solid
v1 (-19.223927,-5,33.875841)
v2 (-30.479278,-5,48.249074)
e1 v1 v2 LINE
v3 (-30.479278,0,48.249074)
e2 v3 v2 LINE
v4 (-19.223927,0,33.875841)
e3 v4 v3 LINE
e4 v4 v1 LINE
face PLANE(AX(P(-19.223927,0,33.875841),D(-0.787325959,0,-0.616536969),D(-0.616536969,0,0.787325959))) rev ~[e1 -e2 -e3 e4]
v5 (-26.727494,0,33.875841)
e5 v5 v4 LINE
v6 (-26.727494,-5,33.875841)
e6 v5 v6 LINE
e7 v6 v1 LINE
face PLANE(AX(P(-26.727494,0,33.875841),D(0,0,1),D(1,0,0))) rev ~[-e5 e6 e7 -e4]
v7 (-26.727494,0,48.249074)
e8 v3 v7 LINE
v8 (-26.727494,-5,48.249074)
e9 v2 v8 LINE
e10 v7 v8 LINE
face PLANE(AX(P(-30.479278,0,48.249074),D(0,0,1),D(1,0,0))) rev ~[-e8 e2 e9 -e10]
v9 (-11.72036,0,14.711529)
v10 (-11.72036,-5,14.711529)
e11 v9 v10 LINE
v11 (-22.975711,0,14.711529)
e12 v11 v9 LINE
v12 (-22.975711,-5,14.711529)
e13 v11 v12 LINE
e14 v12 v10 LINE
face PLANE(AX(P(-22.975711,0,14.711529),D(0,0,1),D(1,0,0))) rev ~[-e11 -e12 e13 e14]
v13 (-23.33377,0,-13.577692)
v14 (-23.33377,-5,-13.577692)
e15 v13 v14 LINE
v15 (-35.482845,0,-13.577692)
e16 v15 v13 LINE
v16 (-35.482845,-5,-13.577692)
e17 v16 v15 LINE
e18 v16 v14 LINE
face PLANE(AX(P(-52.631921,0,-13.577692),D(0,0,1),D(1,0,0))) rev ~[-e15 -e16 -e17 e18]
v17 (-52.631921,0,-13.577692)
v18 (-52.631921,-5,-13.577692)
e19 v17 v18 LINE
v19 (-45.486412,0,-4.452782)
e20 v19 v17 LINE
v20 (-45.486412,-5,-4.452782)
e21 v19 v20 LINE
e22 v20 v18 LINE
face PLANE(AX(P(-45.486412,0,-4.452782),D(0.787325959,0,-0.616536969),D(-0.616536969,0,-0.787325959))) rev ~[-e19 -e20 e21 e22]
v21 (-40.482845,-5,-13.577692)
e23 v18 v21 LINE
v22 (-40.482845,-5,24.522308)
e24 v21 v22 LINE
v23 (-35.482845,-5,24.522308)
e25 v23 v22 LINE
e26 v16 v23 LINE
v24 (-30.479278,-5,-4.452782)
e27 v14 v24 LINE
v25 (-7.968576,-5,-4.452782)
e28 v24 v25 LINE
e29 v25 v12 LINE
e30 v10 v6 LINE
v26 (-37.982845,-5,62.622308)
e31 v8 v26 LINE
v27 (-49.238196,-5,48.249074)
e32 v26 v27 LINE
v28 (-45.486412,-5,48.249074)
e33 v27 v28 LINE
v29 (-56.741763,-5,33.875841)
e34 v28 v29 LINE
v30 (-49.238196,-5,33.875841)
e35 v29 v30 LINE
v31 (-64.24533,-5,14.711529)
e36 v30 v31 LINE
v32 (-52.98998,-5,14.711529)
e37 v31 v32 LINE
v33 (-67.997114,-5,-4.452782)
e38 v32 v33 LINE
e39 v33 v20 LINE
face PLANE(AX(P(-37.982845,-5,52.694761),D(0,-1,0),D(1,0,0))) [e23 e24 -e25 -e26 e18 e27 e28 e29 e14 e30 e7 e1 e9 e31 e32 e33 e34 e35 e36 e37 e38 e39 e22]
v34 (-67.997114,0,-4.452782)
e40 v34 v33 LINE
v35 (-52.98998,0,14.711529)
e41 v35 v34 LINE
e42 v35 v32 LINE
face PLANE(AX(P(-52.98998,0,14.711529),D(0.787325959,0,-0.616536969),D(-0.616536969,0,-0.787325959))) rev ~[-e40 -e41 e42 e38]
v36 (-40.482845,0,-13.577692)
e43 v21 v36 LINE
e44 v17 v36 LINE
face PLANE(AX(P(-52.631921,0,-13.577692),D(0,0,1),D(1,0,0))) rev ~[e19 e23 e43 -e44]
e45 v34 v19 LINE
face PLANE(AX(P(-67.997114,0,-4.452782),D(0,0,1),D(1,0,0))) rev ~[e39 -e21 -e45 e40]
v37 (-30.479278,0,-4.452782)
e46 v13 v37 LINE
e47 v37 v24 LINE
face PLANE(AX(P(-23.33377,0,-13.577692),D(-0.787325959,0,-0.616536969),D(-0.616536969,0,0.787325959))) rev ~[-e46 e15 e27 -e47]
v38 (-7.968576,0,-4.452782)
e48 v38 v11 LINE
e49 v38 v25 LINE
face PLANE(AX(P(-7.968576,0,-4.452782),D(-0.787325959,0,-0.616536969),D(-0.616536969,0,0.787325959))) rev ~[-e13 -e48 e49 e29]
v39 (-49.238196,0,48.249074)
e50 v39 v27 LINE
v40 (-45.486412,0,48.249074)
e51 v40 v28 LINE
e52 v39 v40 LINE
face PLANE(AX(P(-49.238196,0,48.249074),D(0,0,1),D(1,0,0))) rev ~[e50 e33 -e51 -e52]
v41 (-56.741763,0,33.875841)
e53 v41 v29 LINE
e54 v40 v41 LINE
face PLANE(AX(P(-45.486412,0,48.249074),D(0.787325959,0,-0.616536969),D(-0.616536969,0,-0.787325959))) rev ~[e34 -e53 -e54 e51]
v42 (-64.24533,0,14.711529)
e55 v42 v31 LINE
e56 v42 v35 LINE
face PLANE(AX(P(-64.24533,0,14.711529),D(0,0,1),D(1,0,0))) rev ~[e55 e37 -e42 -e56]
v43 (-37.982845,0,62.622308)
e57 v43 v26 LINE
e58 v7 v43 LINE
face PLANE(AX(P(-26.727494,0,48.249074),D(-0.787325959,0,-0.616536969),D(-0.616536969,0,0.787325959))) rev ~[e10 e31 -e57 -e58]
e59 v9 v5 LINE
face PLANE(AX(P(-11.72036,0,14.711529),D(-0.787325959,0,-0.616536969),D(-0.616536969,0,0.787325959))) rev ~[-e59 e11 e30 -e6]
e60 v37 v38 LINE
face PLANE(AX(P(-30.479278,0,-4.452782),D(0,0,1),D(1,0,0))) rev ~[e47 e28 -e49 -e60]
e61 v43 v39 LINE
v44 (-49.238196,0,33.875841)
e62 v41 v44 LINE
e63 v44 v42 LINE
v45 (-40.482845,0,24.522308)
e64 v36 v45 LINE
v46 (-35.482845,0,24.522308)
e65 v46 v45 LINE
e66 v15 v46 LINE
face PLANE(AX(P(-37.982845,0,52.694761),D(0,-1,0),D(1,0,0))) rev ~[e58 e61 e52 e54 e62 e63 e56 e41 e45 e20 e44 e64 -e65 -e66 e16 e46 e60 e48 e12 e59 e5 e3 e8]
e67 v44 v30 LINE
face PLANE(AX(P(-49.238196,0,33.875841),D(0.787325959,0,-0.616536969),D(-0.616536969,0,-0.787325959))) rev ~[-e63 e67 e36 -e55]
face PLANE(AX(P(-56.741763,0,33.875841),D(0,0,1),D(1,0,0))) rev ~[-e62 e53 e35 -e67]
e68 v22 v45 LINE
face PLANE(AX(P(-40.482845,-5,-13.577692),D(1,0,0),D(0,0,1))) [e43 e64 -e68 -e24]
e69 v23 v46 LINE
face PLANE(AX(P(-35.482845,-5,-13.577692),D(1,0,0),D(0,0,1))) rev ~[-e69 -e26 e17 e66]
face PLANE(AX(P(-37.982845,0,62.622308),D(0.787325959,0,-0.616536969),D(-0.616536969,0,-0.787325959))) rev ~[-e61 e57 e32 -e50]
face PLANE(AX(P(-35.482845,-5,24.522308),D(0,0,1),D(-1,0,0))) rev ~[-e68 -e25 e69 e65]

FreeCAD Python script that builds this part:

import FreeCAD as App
import Part
import Sketcher
from FreeCAD import Vector


def add_polygon(sketch, points):
    """Adds a closed chain of lines whose ends are joined by coincident constraints."""
    first, n = sketch.GeometryCount, len(points)
    for a, b in zip(points, points[1:] + points[:1]):
        sketch.addGeometry(Part.LineSegment(App.Vector(*a, 0), App.Vector(*b, 0)), False)
    for i in range(n):
        sketch.addConstraint(Sketcher.Constraint("Coincident", first + i, 2, first + (i + 1) % n, 1))

doc = App.newDocument("Part")
params = doc.addObject("Spreadsheet::Sheet", "Params")
for row, (alias, value) in enumerate([
    ("pad1_length", "5 mm"),
    ("sketch2_width", "5 mm"),
    ("sketch2_height", "38.1 mm"),
    ("pocket1_length", "25 mm"),
], start=1):
    params.set(f"A{row}", alias)
    params.set(f"B{row}", "=" + value)
    params.setAlias(f"B{row}", alias)

body = doc.addObject("PartDesign::Body", "Body")

# Sketch on XZ plane
sketch1 = body.newObject("Sketcher::SketchObject", "Sketch")
sketch1.AttachmentSupport = (doc.getObject("XZ_Plane"), [""])
sketch1.MapMode = "FlatFace"
add_polygon(sketch1, [(-26.727494, 48.249074), (-37.982845, 62.622308), (-49.238196, 48.249074), (-45.486412, 48.249074), (-56.741763, 33.875841), (-49.238196, 33.875841), (-64.24533, 14.711529), (-52.98998, 14.711529), (-67.997114, -4.452782), (-45.486412, -4.452782), (-52.631921, -13.577692), (-23.33377, -13.577692), (-30.479278, -4.452782), (-7.968576, -4.452782), (-22.975711, 14.711529), (-11.72036, 14.711529), (-26.727494, 33.875841), (-19.223927, 33.875841), (-30.479278, 48.249074)])  # lines 0-18
sketch1.addConstraint([
    Sketcher.Constraint("Horizontal", 2),
    Sketcher.Constraint("Horizontal", 4),
    Sketcher.Constraint("Horizontal", 6),
    Sketcher.Constraint("Horizontal", 8),
    Sketcher.Constraint("Horizontal", 10),
    Sketcher.Constraint("Horizontal", 12),
    Sketcher.Constraint("Horizontal", 14),
    Sketcher.Constraint("Horizontal", 16),
    Sketcher.Constraint("Horizontal", 18),
    Sketcher.Constraint("Parallel", 1, 3),
    Sketcher.Constraint("Parallel", 3, 5),
    Sketcher.Constraint("Parallel", 5, 7),
    Sketcher.Constraint("Parallel", 7, 9),
    Sketcher.Constraint("Parallel", 0, 11),
    Sketcher.Constraint("Parallel", 11, 13),
    Sketcher.Constraint("Parallel", 13, 15),
    Sketcher.Constraint("Parallel", 15, 17),
    Sketcher.Constraint("Horizontal", 8, 2, 11, 2),
    Sketcher.Constraint("Horizontal", 6, 2, 13, 2),
    Sketcher.Constraint("Horizontal", 4, 2, 15, 2),
    Sketcher.Constraint("Horizontal", 2, 2, 17, 2),
    Sketcher.Constraint("Vertical", 1, 2, 4, 2),
    Sketcher.Constraint("Vertical", 2, 2, 8, 2),
    Sketcher.Constraint("Vertical", 11, 2, 17, 2),
    Sketcher.Constraint("Vertical", 15, 2, 18, 2),
    Sketcher.Constraint("Equal", 8, 12),
    Sketcher.Constraint("Equal", 6, 14),
    Sketcher.Constraint("Equal", 4, 16),
    Sketcher.Constraint("Equal", 1, 3),
    Sketcher.Constraint("Equal", 5, 7),
    Sketcher.Constraint("DistanceX", 8, 1, 8, 2, 22.510702),
    Sketcher.Constraint("DistanceX", 6, 1, 6, 2, 11.255351),
    Sketcher.Constraint("DistanceX", 10, 1, 10, 2, 29.298151),
    Sketcher.Constraint("DistanceX", 6, 2, 11, 2, 22.510702),
    Sketcher.Constraint("DistanceX", 4, 2, 15, 2, 22.510702),
    Sketcher.Constraint("Distance", 0, 18.25576),
    Sketcher.Constraint("DistanceY", -1, 1, 3, 2, 33.875841),
    Sketcher.Constraint("DistanceX", 5, 2, -1, 1, 64.24533),
])
pad1 = body.newObject("PartDesign::Pad", "Pad")
pad1.Profile = sketch1
pad1.setExpression("Length", "Params.pad1_length")

# Sketch on XZ plane
sketch2 = body.newObject("Sketcher::SketchObject", "Sketch001")
sketch2.AttachmentSupport = (doc.getObject("XZ_Plane"), [""])
sketch2.MapMode = "FlatFace"
sketch2.AttachmentOffset = App.Placement(Vector(0, 0, 5), App.Rotation())
add_polygon(sketch2, [(-40.482845, 24.522308), (-40.482845, -13.577692), (-35.482845, -13.577692), (-35.482845, 24.522308)])  # lines 0-3
sketch2.addConstraint([
    Sketcher.Constraint("Vertical", 0),
    Sketcher.Constraint("Horizontal", 1),
    Sketcher.Constraint("Vertical", 2),
    Sketcher.Constraint("Horizontal", 3),
    Sketcher.Constraint("DistanceX", 1, 1, 1, 2, 5.0),
    Sketcher.Constraint("DistanceY", 0, 2, 0, 1, 38.1),
    Sketcher.Constraint("DistanceX", 0, 2, -1, 1, 40.482845),
    Sketcher.Constraint("DistanceY", 0, 2, -1, 1, 13.577692),
])
sketch2.setExpression("Constraints[8]", "Params.sketch2_width")
sketch2.setExpression("Constraints[9]", "Params.sketch2_height")
pocket1 = body.newObject("PartDesign::Pocket", "Pocket")
pocket1.Profile = sketch2
pocket1.setExpression("Length", "Params.pocket1_length")

doc.recompute()
